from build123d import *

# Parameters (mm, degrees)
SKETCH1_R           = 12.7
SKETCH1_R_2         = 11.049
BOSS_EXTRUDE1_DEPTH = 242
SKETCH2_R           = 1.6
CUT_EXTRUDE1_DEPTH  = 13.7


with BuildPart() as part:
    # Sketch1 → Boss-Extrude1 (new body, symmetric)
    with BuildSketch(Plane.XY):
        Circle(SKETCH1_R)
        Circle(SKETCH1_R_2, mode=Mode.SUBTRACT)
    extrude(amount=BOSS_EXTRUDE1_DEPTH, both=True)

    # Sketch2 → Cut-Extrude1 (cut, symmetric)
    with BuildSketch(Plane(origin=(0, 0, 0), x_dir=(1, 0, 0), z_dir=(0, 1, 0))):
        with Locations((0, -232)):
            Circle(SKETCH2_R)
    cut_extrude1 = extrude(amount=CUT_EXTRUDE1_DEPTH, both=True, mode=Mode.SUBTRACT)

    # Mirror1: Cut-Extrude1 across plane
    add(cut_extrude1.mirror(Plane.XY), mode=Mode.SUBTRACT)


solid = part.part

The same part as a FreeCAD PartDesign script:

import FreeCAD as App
import Part
import Sketcher
from FreeCAD import Vector

doc = App.newDocument("Part")
params = doc.addObject("Spreadsheet::Sheet", "Params")
for row, (alias, value) in enumerate([
    ("sketch1_diameter", "25.4 mm"),
    ("pad1_length", "484 mm"),
    ("sketch2_diameter", "3.2 mm"),
    ("pocket1_length", "27.4 mm"),
], start=1):
    params.set(f"A{row}", alias)
    params.set(f"B{row}", "=" + value)
    params.setAlias(f"B{row}", alias)

body = doc.addObject("PartDesign::Body", "Body")

# Sketch on XY plane
sketch1 = doc.addObject("Sketcher::SketchObject", "Sketch")
body.addObject(sketch1)
sketch1.AttachmentSupport = (doc.XY_Plane, [""])
sketch1.MapMode = "FlatFace"
sketch1.addGeometry([
    Part.Circle(Vector(0, 0, 0), Vector(0, 0, 1), 13),
    Part.Circle(Vector(0, 0, 0), Vector(0, 0, 1), 11),
], False)
sketch1.addConstraint([
    Sketcher.Constraint("Coincident", 0, 3, -1, 1),
    Sketcher.Constraint("Coincident", 1, 3, -1, 1),
    Sketcher.Constraint("Diameter", 0, 25.4),
    Sketcher.Constraint("Diameter", 1, 22.098),
])
sketch1.setExpression("Constraints[2]", "Params.sketch1_diameter")
pad1 = doc.addObject("PartDesign::Pad", "Pad")
body.addObject(pad1)
pad1.Profile = sketch1
pad1.setExpression("Length", "Params.pad1_length")
pad1.Midplane = True

# Sketch on XZ plane
sketch2 = doc.addObject("Sketcher::SketchObject", "Sketch001")
body.addObject(sketch2)
sketch2.AttachmentSupport = (doc.XZ_Plane, [""])
sketch2.MapMode = "FlatFace"
sketch2.addGeometry(Part.Circle(Vector(0, 232, 0), Vector(0, 0, 1), 1.6), False)
sketch2.addConstraint([
    Sketcher.Constraint("PointOnObject", 0, 3, -2),
    Sketcher.Constraint("Diameter", 0, 3.2),
    Sketcher.Constraint("DistanceY", -1, 1, 0, 3, 232.0),
])
sketch2.setExpression("Constraints[1]", "Params.sketch2_diameter")
pocket1 = doc.addObject("PartDesign::Pocket", "Pocket")
body.addObject(pocket1)
pocket1.Profile = sketch2
pocket1.setExpression("Length", "Params.pocket1_length")
pocket1.Midplane = True
doc.recompute()

mirrored = doc.addObject("PartDesign::Mirrored", "Mirrored")
body.addObject(mirrored)
mirrored.Originals = [pocket1]
mirrored.MirrorPlane = (doc.XY_Plane, [""])
body.Tip = mirrored

doc.recompute()
